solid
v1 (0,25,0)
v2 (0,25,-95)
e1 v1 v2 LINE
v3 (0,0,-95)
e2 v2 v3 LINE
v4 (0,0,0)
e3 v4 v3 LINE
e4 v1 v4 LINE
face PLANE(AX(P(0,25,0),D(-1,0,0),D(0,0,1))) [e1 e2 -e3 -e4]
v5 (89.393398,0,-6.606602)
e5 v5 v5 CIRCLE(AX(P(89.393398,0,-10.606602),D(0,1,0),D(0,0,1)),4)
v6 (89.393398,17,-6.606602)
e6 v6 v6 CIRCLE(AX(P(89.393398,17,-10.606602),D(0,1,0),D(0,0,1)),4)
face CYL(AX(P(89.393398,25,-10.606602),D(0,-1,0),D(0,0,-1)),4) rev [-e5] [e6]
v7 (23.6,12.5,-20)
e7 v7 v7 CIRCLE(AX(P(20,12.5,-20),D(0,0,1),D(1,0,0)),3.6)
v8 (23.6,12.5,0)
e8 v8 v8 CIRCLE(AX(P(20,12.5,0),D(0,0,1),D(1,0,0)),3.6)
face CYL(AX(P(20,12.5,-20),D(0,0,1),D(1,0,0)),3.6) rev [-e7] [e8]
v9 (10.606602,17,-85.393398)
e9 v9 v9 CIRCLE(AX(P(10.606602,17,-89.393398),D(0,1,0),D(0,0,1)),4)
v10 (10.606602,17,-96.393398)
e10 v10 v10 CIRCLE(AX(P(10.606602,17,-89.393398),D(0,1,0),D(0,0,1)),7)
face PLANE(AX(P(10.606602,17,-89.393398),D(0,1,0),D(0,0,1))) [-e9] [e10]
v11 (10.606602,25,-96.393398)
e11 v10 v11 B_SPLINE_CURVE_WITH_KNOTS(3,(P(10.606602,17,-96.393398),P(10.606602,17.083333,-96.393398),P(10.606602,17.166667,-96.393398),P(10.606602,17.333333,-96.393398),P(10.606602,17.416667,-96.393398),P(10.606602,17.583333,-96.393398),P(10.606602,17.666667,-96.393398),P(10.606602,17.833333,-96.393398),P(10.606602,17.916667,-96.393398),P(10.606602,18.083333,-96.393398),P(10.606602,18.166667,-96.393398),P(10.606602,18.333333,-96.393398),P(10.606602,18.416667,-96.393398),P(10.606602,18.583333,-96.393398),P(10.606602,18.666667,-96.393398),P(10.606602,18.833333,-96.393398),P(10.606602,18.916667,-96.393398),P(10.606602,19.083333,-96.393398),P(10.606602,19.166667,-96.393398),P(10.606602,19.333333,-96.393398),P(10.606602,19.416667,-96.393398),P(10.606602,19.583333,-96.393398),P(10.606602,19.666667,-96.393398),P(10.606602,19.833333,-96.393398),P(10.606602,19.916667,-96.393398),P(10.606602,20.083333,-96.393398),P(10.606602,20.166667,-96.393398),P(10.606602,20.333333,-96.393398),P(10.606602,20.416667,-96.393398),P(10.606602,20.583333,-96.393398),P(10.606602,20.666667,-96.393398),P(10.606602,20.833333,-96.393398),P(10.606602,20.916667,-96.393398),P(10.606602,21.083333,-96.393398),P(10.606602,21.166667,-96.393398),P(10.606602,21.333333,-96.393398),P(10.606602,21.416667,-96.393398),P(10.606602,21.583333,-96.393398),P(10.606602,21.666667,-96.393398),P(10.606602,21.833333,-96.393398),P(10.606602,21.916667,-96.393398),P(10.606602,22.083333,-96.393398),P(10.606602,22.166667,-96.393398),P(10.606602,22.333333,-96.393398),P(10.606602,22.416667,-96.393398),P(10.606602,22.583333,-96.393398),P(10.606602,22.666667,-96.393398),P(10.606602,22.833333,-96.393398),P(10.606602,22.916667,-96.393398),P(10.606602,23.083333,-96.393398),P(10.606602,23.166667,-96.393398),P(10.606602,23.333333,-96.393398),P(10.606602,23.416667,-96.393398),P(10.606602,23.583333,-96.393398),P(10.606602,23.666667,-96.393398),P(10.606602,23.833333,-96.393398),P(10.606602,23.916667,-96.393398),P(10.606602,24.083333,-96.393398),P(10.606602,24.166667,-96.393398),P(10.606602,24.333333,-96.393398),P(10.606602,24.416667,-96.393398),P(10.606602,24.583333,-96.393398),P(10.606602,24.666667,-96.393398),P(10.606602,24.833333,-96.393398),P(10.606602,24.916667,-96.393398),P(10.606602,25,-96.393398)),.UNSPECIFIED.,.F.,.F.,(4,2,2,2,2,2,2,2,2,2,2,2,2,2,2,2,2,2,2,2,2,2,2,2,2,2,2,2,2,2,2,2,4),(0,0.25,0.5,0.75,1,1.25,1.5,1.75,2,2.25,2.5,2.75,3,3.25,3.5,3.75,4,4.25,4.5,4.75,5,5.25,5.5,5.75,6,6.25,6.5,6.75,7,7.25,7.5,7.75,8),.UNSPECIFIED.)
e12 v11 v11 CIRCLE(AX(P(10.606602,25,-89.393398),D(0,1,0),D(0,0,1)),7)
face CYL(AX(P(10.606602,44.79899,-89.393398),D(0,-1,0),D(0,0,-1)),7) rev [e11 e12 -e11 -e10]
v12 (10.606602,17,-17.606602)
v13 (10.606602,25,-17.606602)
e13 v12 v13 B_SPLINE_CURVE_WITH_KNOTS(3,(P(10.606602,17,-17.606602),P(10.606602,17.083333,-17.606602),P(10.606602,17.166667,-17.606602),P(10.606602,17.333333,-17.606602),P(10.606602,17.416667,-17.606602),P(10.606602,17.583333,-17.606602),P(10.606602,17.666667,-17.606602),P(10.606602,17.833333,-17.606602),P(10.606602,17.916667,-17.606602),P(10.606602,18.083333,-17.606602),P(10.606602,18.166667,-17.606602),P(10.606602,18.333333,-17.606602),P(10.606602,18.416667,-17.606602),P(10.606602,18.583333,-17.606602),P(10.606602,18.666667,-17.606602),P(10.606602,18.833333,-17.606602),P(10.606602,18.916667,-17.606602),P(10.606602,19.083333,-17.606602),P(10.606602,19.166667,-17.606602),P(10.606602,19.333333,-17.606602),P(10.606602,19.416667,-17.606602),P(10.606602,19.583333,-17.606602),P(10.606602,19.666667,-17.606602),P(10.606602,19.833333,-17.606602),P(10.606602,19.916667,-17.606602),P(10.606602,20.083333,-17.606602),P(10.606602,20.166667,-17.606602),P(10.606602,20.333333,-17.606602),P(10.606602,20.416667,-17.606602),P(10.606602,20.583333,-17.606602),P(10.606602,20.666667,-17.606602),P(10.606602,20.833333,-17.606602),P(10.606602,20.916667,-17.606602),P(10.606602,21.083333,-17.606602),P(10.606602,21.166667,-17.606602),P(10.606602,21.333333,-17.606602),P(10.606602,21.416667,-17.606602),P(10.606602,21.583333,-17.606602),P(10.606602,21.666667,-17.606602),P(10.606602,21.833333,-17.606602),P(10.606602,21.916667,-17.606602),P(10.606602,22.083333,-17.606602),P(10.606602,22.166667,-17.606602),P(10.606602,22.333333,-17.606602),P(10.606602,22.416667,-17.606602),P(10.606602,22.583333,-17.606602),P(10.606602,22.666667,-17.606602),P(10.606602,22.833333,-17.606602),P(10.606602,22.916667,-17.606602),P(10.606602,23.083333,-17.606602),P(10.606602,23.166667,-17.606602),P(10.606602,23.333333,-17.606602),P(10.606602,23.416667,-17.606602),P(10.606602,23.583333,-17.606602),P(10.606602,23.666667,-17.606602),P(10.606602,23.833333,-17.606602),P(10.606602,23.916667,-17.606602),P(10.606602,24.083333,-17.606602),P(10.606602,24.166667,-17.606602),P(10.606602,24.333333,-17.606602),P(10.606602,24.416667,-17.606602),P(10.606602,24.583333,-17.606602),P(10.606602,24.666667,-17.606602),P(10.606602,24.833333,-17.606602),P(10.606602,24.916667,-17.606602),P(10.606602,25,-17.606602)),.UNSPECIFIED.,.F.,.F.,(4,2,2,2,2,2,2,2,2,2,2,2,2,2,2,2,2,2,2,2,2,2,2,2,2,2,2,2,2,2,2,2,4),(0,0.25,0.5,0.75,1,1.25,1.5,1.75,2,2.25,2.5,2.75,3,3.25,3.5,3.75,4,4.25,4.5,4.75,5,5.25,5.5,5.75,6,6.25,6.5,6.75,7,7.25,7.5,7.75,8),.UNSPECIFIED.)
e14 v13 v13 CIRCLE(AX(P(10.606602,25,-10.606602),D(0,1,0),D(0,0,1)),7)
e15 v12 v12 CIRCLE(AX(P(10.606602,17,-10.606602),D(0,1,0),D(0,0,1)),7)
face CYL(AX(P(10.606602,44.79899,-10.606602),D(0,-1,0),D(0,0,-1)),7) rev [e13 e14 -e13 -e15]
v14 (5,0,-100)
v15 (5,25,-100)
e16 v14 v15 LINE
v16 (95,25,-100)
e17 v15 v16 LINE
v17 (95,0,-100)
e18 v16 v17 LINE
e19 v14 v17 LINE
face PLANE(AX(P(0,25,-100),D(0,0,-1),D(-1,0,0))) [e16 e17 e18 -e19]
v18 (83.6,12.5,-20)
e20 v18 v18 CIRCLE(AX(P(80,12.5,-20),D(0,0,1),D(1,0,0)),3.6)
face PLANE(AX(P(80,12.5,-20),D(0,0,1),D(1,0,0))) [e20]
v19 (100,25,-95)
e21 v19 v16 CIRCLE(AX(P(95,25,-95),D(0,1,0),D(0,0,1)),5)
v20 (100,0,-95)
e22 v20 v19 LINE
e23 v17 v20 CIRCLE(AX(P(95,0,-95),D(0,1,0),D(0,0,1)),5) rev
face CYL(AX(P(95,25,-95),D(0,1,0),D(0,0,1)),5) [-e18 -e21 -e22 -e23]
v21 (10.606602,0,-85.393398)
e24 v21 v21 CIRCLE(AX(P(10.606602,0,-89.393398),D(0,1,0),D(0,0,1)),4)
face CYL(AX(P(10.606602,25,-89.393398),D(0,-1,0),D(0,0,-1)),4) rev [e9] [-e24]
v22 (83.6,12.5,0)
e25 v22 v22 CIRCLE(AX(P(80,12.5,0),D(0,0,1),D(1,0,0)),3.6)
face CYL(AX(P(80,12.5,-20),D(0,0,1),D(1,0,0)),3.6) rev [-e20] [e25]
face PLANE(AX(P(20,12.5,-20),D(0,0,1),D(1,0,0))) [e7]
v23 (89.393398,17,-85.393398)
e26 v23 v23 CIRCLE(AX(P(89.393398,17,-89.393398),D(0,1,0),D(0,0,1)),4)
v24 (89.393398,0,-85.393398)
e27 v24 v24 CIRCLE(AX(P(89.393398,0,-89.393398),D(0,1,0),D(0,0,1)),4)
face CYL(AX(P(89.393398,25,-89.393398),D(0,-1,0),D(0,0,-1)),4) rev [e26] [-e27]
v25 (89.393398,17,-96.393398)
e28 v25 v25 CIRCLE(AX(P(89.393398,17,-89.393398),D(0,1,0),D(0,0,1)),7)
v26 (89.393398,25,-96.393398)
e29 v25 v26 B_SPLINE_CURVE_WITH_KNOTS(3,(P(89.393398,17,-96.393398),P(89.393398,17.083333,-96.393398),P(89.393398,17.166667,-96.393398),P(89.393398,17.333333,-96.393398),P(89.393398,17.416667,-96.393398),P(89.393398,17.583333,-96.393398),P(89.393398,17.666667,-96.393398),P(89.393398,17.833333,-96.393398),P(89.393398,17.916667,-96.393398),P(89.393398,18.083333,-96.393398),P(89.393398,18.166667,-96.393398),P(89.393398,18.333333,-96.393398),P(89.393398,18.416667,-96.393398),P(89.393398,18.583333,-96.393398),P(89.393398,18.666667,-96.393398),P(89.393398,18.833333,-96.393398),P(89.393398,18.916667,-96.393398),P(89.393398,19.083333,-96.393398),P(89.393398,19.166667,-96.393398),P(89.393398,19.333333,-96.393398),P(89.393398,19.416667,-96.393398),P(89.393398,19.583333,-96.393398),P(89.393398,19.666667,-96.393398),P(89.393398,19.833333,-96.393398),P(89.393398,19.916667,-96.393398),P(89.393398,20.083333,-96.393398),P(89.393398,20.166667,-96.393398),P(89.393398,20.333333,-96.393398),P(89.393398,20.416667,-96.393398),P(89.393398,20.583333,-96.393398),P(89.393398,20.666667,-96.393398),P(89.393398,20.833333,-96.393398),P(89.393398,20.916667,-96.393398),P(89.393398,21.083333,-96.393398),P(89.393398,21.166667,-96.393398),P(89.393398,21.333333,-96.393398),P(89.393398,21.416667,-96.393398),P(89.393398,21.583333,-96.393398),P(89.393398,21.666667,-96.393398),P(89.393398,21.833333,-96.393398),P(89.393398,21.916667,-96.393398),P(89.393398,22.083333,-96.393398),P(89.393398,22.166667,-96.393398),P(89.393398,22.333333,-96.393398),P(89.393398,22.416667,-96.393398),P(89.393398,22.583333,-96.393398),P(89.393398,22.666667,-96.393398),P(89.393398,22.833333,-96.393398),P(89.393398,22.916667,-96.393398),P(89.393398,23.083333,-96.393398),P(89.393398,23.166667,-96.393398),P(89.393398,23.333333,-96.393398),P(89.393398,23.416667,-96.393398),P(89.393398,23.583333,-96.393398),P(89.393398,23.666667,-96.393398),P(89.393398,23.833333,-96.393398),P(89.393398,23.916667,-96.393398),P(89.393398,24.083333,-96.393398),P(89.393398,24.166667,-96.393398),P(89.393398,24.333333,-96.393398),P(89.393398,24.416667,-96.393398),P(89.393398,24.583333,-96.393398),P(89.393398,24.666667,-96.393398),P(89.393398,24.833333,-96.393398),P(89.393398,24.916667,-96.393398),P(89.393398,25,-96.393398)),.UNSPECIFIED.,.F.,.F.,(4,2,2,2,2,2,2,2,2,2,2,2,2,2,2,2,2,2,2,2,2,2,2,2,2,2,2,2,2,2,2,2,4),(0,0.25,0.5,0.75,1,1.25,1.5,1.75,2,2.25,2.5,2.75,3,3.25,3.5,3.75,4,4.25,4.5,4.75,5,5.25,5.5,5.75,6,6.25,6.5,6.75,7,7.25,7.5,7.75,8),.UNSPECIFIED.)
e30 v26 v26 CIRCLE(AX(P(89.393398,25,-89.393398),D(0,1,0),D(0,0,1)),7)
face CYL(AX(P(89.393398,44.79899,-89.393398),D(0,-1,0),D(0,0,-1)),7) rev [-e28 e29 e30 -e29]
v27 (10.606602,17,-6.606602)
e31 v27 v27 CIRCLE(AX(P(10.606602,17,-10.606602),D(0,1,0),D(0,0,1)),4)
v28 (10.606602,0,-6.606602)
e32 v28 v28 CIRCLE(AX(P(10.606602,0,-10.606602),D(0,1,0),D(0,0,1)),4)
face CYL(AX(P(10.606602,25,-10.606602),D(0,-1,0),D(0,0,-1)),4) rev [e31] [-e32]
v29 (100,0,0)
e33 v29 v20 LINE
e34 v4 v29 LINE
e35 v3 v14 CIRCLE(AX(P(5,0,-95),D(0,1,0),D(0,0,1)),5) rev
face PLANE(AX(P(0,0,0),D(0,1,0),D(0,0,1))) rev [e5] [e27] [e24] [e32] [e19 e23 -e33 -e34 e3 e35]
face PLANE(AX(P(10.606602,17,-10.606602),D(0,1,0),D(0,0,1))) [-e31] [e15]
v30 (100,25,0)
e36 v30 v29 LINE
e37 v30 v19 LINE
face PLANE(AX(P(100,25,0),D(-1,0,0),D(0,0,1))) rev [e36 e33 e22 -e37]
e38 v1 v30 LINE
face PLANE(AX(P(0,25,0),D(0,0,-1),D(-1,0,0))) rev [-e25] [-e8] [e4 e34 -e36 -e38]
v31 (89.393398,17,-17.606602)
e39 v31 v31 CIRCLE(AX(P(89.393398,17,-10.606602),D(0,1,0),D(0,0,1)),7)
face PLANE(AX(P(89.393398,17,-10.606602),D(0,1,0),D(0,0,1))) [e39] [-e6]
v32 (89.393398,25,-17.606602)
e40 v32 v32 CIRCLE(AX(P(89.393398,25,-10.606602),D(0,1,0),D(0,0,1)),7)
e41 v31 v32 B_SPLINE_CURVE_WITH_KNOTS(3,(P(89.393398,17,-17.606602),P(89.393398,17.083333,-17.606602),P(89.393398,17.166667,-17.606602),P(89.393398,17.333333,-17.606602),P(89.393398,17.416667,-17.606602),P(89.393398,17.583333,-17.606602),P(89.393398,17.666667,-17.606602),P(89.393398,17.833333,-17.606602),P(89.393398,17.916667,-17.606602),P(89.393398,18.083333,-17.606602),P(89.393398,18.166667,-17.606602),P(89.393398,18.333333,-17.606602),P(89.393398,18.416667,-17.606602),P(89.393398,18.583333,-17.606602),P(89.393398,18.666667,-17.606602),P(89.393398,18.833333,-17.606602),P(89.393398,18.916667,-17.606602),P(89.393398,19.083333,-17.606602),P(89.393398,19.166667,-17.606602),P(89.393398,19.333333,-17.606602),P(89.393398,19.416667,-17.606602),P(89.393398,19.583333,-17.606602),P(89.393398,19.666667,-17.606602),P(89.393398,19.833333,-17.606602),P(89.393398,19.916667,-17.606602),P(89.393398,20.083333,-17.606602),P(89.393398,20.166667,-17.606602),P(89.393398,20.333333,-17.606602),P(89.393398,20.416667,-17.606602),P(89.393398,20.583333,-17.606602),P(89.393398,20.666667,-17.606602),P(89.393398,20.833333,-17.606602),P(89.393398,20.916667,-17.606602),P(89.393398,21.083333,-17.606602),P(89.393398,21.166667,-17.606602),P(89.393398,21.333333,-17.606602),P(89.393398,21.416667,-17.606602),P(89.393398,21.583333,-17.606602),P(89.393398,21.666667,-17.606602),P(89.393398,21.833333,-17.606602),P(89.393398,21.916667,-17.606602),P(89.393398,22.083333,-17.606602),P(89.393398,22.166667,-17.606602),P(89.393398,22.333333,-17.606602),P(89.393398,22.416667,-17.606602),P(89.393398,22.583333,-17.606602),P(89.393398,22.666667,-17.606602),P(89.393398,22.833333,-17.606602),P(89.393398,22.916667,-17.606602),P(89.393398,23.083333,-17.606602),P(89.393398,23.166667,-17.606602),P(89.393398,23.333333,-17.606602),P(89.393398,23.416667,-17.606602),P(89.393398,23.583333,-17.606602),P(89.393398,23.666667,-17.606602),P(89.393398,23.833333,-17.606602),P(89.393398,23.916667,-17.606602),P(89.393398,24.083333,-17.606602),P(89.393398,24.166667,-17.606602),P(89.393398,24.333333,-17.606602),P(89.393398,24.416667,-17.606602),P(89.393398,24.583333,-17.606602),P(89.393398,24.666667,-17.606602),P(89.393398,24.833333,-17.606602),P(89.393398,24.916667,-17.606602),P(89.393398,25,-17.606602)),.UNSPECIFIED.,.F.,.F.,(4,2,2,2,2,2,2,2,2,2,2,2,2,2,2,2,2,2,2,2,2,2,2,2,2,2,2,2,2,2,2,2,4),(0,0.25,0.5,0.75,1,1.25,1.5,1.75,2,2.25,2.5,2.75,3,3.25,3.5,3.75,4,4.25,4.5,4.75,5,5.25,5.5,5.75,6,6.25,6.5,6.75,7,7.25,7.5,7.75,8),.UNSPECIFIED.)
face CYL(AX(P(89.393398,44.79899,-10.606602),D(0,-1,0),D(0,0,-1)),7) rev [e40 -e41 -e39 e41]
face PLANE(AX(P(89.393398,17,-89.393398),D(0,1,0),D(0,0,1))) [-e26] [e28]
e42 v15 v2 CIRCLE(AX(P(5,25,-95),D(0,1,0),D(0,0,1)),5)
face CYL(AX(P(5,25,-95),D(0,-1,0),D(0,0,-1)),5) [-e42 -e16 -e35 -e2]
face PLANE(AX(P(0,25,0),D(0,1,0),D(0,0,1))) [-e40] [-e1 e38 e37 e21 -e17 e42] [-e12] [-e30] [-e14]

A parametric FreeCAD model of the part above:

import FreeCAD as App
import Part
import Sketcher
from FreeCAD import Vector
Q = App.Units.Quantity


def edges_at(feature, points):
    """Names of the edges that pass closest to the given points."""
    edges = feature.Shape.Edges
    near = lambda p: min(range(len(edges)), key=lambda i: edges[i].distToShape(Part.Vertex(*p))[0])
    return sorted({f"Edge{near(p) + 1}" for p in points})


def add_polygon(sketch, points):
    """Adds a closed chain of lines whose ends are joined by coincident constraints."""
    first, n = sketch.GeometryCount, len(points)
    for a, b in zip(points, points[1:] + points[:1]):
        sketch.addGeometry(Part.LineSegment(App.Vector(*a, 0), App.Vector(*b, 0)), False)
    for i in range(n):
        sketch.addConstraint(Sketcher.Constraint("Coincident", first + i, 2, first + (i + 1) % n, 1))

doc = App.newDocument("Part")
body = doc.addObject("PartDesign::Body", "Body")

# Sketch on XZ plane
sketch1 = body.newObject("Sketcher::SketchObject", "Sketch")
sketch1.AttachmentSupport = (doc.getObject("XZ_Plane"), [""])
sketch1.MapMode = "FlatFace"
add_polygon(sketch1, [(0, -100), (0, 0), (100, 0), (100, -100)])  # lines 0-3
sketch1.addGeometry(Part.Circle(Vector(10.6, -10.6, 0), Vector(0, 0, 1), 4), False)  # 4
sketch1.addGeometry(Part.Circle(Vector(89.4, -10.6, 0), Vector(0, 0, 1), 4), False)  # 5
sketch1.addGeometry(Part.Circle(Vector(10.6, -89.4, 0), Vector(0, 0, 1), 4), False)  # 6
sketch1.addGeometry(Part.Circle(Vector(89.4, -89.4, 0), Vector(0, 0, 1), 4), False)  # 7
sketch1.addConstraint(Sketcher.Constraint("Vertical", 0))
sketch1.addConstraint(Sketcher.Constraint("Horizontal", 1))
sketch1.addConstraint(Sketcher.Constraint("Vertical", 2))
sketch1.addConstraint(Sketcher.Constraint("Horizontal", 3))
sketch1.addConstraint(Sketcher.Constraint("Coincident", 0, 2, -1, 1))
sketch1.addConstraint(Sketcher.Constraint("Equal", 4, 5))
sketch1.addConstraint(Sketcher.Constraint("Equal", 5, 6))
sketch1.addConstraint(Sketcher.Constraint("Equal", 6, 7))
sketch1.addConstraint(Sketcher.Constraint("Horizontal", 4, 3, 5, 3))
sketch1.addConstraint(Sketcher.Constraint("Horizontal", 6, 3, 7, 3))
sketch1.addConstraint(Sketcher.Constraint("Vertical", 4, 3, 6, 3))
sketch1.addConstraint(Sketcher.Constraint("Vertical", 5, 3, 7, 3))
sketch1.addConstraint(Sketcher.Constraint("Equal", 3, 0))
sketch1.addConstraint(Sketcher.Constraint("Diameter", 4, Q("8 mm")))
sketch1.addConstraint(Sketcher.Constraint("DistanceX", 1, 1, 1, 2, Q("100 mm")))
sketch1.addConstraint(Sketcher.Constraint("DistanceX", -1, 1, 4, 3, Q("10.606602 mm")))
sketch1.addConstraint(Sketcher.Constraint("DistanceY", 4, 3, -1, 1, Q("10.606602 mm")))
sketch1.addConstraint(Sketcher.Constraint("DistanceX", -1, 1, 5, 3, Q("89.393398 mm")))
sketch1.addConstraint(Sketcher.Constraint("DistanceY", 6, 3, -1, 1, Q("89.393398 mm")))
pad1 = body.newObject("PartDesign::Pad", "Pad")
pad1.Profile = sketch1
pad1.Length = 25
pad1.Reversed = True

# Sketch on XY plane
sketch2 = body.newObject("Sketcher::SketchObject", "Sketch001")
sketch2.AttachmentSupport = (doc.getObject("XY_Plane"), [""])
sketch2.MapMode = "FlatFace"
sketch2.addGeometry(Part.Circle(Vector(20, 12.5, 0), Vector(0, 0, 1), 3.6), False)
sketch2.addGeometry(Part.Circle(Vector(80, 12.5, 0), Vector(0, 0, 1), 3.6), False)
sketch2.addConstraint(Sketcher.Constraint("Equal", 0, 1))
sketch2.addConstraint(Sketcher.Constraint("Horizontal", 0, 3, 1, 3))
sketch2.addConstraint(Sketcher.Constraint("Diameter", 0, Q("7.2 mm")))
sketch2.addConstraint(Sketcher.Constraint("DistanceX", -1, 1, 0, 3, Q("20 mm")))
sketch2.addConstraint(Sketcher.Constraint("DistanceX", -1, 1, 1, 3, Q("80 mm")))
sketch2.addConstraint(Sketcher.Constraint("DistanceY", -1, 1, 0, 3, Q("12.5 mm")))
pocket1 = body.newObject("PartDesign::Pocket", "Pocket")
pocket1.Profile = sketch2
pocket1.Length = 20
doc.recompute()

fillet = body.newObject("PartDesign::Fillet", "Fillet")
fillet.Base = (pocket1, edges_at(pocket1, [(100, 12.5, -100), (0, 12.5, -100)]))
fillet.Radius = 5

# Sketch on XZ plane
sketch3 = body.newObject("Sketcher::SketchObject", "Sketch002")
sketch3.AttachmentSupport = (doc.getObject("XZ_Plane"), [""])
sketch3.MapMode = "FlatFace"
sketch3.AttachmentOffset = App.Placement(Vector(0, 0, -17), App.Rotation())
sketch3.addGeometry(Part.Circle(Vector(11, -89, 0), Vector(0, 0, 1), 7), False)
sketch3.addGeometry(Part.Circle(Vector(89, -89, 0), Vector(0, 0, 1), 7), False)
sketch3.addGeometry(Part.Circle(Vector(11, -11, 0), Vector(0, 0, 1), 7), False)
sketch3.addGeometry(Part.Circle(Vector(89, -11, 0), Vector(0, 0, 1), 7), False)
sketch3.addConstraint(Sketcher.Constraint("Equal", 0, 1))
sketch3.addConstraint(Sketcher.Constraint("Equal", 1, 2))
sketch3.addConstraint(Sketcher.Constraint("Equal", 2, 3))
sketch3.addConstraint(Sketcher.Constraint("Horizontal", 0, 3, 1, 3))
sketch3.addConstraint(Sketcher.Constraint("Horizontal", 2, 3, 3, 3))
sketch3.addConstraint(Sketcher.Constraint("Vertical", 0, 3, 2, 3))
sketch3.addConstraint(Sketcher.Constraint("Vertical", 1, 3, 3, 3))
sketch3.addConstraint(Sketcher.Constraint("Diameter", 0, Q("14 mm")))
sketch3.addConstraint(Sketcher.Constraint("DistanceX", -1, 1, 0, 3, Q("10.606602 mm")))
sketch3.addConstraint(Sketcher.Constraint("DistanceY", 0, 3, -1, 1, Q("89.393398 mm")))
sketch3.addConstraint(Sketcher.Constraint("DistanceX", -1, 1, 1, 3, Q("89.393398 mm")))
sketch3.addConstraint(Sketcher.Constraint("DistanceY", 2, 3, -1, 1, Q("10.606602 mm")))
pocket2 = body.newObject("PartDesign::Pocket", "Pocket001")
pocket2.Profile = sketch3
pocket2.Length = 8

doc.recompute()
